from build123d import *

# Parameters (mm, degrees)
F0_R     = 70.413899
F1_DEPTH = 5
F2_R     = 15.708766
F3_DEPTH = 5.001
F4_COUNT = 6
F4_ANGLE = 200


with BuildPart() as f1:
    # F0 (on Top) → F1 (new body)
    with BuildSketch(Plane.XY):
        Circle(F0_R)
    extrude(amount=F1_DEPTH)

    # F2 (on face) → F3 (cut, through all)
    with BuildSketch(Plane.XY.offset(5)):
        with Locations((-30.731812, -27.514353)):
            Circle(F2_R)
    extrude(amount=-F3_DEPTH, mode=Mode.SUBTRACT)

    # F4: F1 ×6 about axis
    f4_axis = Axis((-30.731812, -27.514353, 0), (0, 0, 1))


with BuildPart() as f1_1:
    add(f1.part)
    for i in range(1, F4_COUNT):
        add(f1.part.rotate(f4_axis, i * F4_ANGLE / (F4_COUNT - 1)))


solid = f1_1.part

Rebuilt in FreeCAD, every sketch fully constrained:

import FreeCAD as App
import Part
import Sketcher
Q = App.Units.Quantity

doc = App.newDocument("Part")
params = doc.addObject("Spreadsheet::Sheet", "Params")
for row, (alias, value) in enumerate([
    ("pad1_length", "5 mm"),
], start=1):
    params.set(f"A{row}", alias)
    params.set(f"B{row}", "=" + value)
    params.setAlias(f"B{row}", alias)

body = doc.addObject("PartDesign::Body", "Body")

sketch1 = body.newObject("Sketcher::SketchObject", "Sketch")
sketch1.AttachmentSupport = (doc.getObject("XY_Plane"), [""])
sketch1.MapMode = "FlatFace"
sketch1.addGeometry(Part.Circle(App.Vector(0, 0, 0), App.Vector(0, 0, 1), 70), False)
sketch1.addConstraint(Sketcher.Constraint("Coincident", 0, 3, -1, 1))
sketch1.addConstraint(Sketcher.Constraint("Diameter", 0, Q("140.827798 mm")))
pad1 = body.newObject("PartDesign::Pad", "Pad")
pad1.Profile = sketch1
pad1.setExpression("Length", "Params.pad1_length")

sketch2 = body.newObject("Sketcher::SketchObject", "Sketch001")
sketch2.AttachmentSupport = (doc.getObject("XY_Plane"), [""])
sketch2.MapMode = "FlatFace"
sketch2.AttachmentOffset = App.Placement(App.Vector(0, 0, 5), App.Rotation())
sketch2.addGeometry(Part.Circle(App.Vector(-31, -28, 0), App.Vector(0, 0, 1), 16), False)
sketch2.addConstraint(Sketcher.Constraint("Diameter", 0, Q("31.417532 mm")))
sketch2.addConstraint(Sketcher.Constraint("DistanceX", 0, 3, -1, 1, Q("30.731812 mm")))
sketch2.addConstraint(Sketcher.Constraint("DistanceY", 0, 3, -1, 1, Q("27.514353 mm")))
pocket1 = body.newObject("PartDesign::Pocket", "Pocket")
pocket1.Profile = sketch2
pocket1.Type = "ThroughAll"
body2 = doc.addObject("PartDesign::Body", "Body001")
doc.recompute()

body2.BaseFeature = body
doc.recompute()

body3 = doc.addObject("PartDesign::Body", "Body002")
body3.BaseFeature = body
body3.Placement = App.Placement(App.Vector(-24.875763, 13.316892, 0), App.Rotation(App.Vector(0, 0, 1), 40))
boolean = body2.newObject("PartDesign::Boolean", "Boolean")
boolean.Type = "Fuse"
boolean.addObjects([body3])
doc.recompute()

body4 = doc.addObject("PartDesign::Body", "Body003")
body4.BaseFeature = body
body4.Placement = App.Placement(App.Vector(-52.491637, 7.528391, 0), App.Rotation(App.Vector(0, 0, 1), 80))
boolean2 = body2.newObject("PartDesign::Boolean", "Boolean001")
boolean2.Type = "Fuse"
boolean2.addObjects([body4])
doc.recompute()

body5 = doc.addObject("PartDesign::Body", "Body004")
body5.BaseFeature = body
body5.Placement = App.Placement(App.Vector(-69.925847, -14.657, 0), App.Rotation(App.Vector(0, 0, 1), 120))
boolean3 = body2.newObject("PartDesign::Boolean", "Boolean002")
boolean3.Type = "Fuse"
boolean3.addObjects([body5])
doc.recompute()

body6 = doc.addObject("PartDesign::Body", "Body005")
body6.BaseFeature = body
body6.Placement = App.Placement(App.Vector(-69.020732, -42.858489, 0), App.Rotation(App.Vector(0, 0, 1), 160))
boolean4 = body2.newObject("PartDesign::Boolean", "Boolean003")
boolean4.Type = "Fuse"
boolean4.addObjects([body6])
doc.recompute()

body.Placement = App.Placement(App.Vector(-50.199806, -63.880286, 0), App.Rotation(App.Vector(0, 0, 1), 200))
boolean5 = body2.newObject("PartDesign::Boolean", "Boolean004")
boolean5.Type = "Fuse"
boolean5.addObjects([body])

doc.recompute()
